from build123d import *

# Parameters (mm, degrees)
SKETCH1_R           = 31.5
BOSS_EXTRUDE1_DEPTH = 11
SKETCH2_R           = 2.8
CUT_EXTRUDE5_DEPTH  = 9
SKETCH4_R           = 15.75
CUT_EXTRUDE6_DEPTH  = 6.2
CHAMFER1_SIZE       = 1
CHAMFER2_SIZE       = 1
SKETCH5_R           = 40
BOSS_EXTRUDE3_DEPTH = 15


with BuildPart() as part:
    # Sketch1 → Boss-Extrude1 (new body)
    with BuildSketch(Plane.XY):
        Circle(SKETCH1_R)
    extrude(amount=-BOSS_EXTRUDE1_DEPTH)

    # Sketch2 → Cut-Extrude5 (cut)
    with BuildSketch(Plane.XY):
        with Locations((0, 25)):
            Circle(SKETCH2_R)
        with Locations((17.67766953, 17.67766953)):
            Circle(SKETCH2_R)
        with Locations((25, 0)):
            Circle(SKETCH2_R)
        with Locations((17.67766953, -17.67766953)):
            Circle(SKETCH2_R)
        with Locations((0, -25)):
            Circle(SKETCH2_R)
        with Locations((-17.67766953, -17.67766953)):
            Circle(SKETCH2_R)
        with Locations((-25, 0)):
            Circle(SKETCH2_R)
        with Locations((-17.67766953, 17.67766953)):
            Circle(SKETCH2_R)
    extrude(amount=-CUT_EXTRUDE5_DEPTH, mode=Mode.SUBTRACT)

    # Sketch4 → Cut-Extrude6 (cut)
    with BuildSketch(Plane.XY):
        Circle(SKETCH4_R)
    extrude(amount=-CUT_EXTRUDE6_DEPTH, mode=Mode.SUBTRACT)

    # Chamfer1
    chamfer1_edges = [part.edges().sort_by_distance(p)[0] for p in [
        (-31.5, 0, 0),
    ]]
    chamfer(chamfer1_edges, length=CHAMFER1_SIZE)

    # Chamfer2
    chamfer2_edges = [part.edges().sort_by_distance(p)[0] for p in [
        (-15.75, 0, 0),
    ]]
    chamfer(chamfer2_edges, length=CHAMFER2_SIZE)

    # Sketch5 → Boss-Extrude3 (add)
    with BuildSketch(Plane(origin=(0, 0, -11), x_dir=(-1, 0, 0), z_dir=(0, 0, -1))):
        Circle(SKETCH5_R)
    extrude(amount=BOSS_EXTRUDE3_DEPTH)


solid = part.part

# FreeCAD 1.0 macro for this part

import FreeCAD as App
import Part
import Sketcher
from FreeCAD import Vector
Q = App.Units.Quantity


def edges_at(feature, points):
    """Names of the edges that pass closest to the given points."""
    edges = feature.Shape.Edges
    near = lambda p: min(range(len(edges)), key=lambda i: edges[i].distToShape(Part.Vertex(*p))[0])
    return sorted({f"Edge{near(p) + 1}" for p in points})

doc = App.newDocument("Part")
body = doc.addObject("PartDesign::Body", "Body")

# Sketch on XY plane
sketch1 = body.newObject("Sketcher::SketchObject", "Sketch")
sketch1.AttachmentSupport = (doc.getObject("XY_Plane"), [""])
sketch1.MapMode = "FlatFace"
sketch1.addGeometry(Part.Circle(Vector(0, 0, 0), Vector(0, 0, 1), 31.5), False)
sketch1.addConstraint(Sketcher.Constraint("Coincident", 0, 3, -1, 1))
sketch1.addConstraint(Sketcher.Constraint("Diameter", 0, Q("63 mm")))
pad1 = body.newObject("PartDesign::Pad", "Pad")
pad1.Profile = sketch1
pad1.Length = 11
pad1.Reversed = True

# Sketch on XY plane
sketch2 = body.newObject("Sketcher::SketchObject", "Sketch001")
sketch2.AttachmentSupport = (doc.getObject("XY_Plane"), [""])
sketch2.MapMode = "FlatFace"
sketch2.addGeometry(Part.Circle(Vector(0, 25, 0), Vector(0, 0, 1), 2.8), False)
sketch2.addGeometry(Part.Circle(Vector(17.67767, 17.67767, 0), Vector(0, 0, 1), 2.8), False)
sketch2.addGeometry(Part.Circle(Vector(25, 0, 0), Vector(0, 0, 1), 2.8), False)
sketch2.addGeometry(Part.Circle(Vector(17.67767, -17.67767, 0), Vector(0, 0, 1), 2.8), False)
sketch2.addGeometry(Part.Circle(Vector(0, -25, 0), Vector(0, 0, 1), 2.8), False)
sketch2.addGeometry(Part.Circle(Vector(-17.67767, -17.67767, 0), Vector(0, 0, 1), 2.8), False)
sketch2.addGeometry(Part.Circle(Vector(-25, 0, 0), Vector(0, 0, 1), 2.8), False)
sketch2.addGeometry(Part.Circle(Vector(-17.67767, 17.67767, 0), Vector(0, 0, 1), 2.8), False)
sketch2.addConstraint(Sketcher.Constraint("Equal", 0, 1))
sketch2.addConstraint(Sketcher.Constraint("Equal", 1, 2))
sketch2.addConstraint(Sketcher.Constraint("Equal", 2, 3))
sketch2.addConstraint(Sketcher.Constraint("Equal", 3, 4))
sketch2.addConstraint(Sketcher.Constraint("Equal", 4, 5))
sketch2.addConstraint(Sketcher.Constraint("Equal", 5, 6))
sketch2.addConstraint(Sketcher.Constraint("Equal", 6, 7))
sketch2.addConstraint(Sketcher.Constraint("Symmetric", 0, 3, 4, 3, -1, 1))
sketch2.addConstraint(Sketcher.Constraint("Symmetric", 1, 3, 5, 3, -1, 1))
sketch2.addConstraint(Sketcher.Constraint("Symmetric", 2, 3, 6, 3, -1, 1))
sketch2.addConstraint(Sketcher.Constraint("Symmetric", 3, 3, 7, 3, -1, 1))
sketch2.addConstraint(Sketcher.Constraint("Symmetric", 3, 3, 5, 3, -2))
sketch2.addConstraint(Sketcher.Constraint("PointOnObject", 0, 3, -2))
sketch2.addConstraint(Sketcher.Constraint("PointOnObject", 2, 3, -1))
sketch2.addConstraint(Sketcher.Constraint("Diameter", 0, Q("5.6 mm")))
sketch2.addConstraint(Sketcher.Constraint("DistanceY", -1, 1, 0, 3, Q("25 mm")))
sketch2.addConstraint(Sketcher.Constraint("DistanceX", -1, 1, 2, 3, Q("25 mm")))
sketch2.addConstraint(Sketcher.Constraint("DistanceX", -1, 1, 1, 3, Q("17.67767 mm")))
sketch2.addConstraint(Sketcher.Constraint("DistanceY", -1, 1, 1, 3, Q("17.67767 mm")))
pocket1 = body.newObject("PartDesign::Pocket", "Pocket")
pocket1.Profile = sketch2
pocket1.Length = 9

# Sketch on XY plane
sketch3 = body.newObject("Sketcher::SketchObject", "Sketch002")
sketch3.AttachmentSupport = (doc.getObject("XY_Plane"), [""])
sketch3.MapMode = "FlatFace"
sketch3.addGeometry(Part.Circle(Vector(0, 0, 0), Vector(0, 0, 1), 15.75), False)
sketch3.addConstraint(Sketcher.Constraint("Coincident", 0, 3, -1, 1))
sketch3.addConstraint(Sketcher.Constraint("Diameter", 0, Q("31.5 mm")))
pocket2 = body.newObject("PartDesign::Pocket", "Pocket001")
pocket2.Profile = sketch3
pocket2.Length = 6.2
doc.recompute()

chamfer = body.newObject("PartDesign::Chamfer", "Chamfer")
chamfer.Base = (pocket2, edges_at(pocket2, [(-31.5, 0, 0)]))
chamfer.Size = 1
doc.recompute()

chamfer2 = body.newObject("PartDesign::Chamfer", "Chamfer001")
chamfer2.Base = (chamfer, edges_at(chamfer, [(-15.75, 0, 0)]))
chamfer2.Size = 1

# Sketch on XY plane
sketch4 = body.newObject("Sketcher::SketchObject", "Sketch003")
sketch4.AttachmentSupport = (doc.getObject("XY_Plane"), [""])
sketch4.MapMode = "FlatFace"
sketch4.AttachmentOffset = App.Placement(Vector(0, 0, -11), App.Rotation())
sketch4.addGeometry(Part.Circle(Vector(0, 0, 0), Vector(0, 0, 1), 40), False)
sketch4.addConstraint(Sketcher.Constraint("Coincident", 0, 3, -1, 1))
sketch4.addConstraint(Sketcher.Constraint("Diameter", 0, Q("80 mm")))
pad2 = body.newObject("PartDesign::Pad", "Pad001")
pad2.Profile = sketch4
pad2.Length = 15
pad2.Reversed = True

doc.recompute()
